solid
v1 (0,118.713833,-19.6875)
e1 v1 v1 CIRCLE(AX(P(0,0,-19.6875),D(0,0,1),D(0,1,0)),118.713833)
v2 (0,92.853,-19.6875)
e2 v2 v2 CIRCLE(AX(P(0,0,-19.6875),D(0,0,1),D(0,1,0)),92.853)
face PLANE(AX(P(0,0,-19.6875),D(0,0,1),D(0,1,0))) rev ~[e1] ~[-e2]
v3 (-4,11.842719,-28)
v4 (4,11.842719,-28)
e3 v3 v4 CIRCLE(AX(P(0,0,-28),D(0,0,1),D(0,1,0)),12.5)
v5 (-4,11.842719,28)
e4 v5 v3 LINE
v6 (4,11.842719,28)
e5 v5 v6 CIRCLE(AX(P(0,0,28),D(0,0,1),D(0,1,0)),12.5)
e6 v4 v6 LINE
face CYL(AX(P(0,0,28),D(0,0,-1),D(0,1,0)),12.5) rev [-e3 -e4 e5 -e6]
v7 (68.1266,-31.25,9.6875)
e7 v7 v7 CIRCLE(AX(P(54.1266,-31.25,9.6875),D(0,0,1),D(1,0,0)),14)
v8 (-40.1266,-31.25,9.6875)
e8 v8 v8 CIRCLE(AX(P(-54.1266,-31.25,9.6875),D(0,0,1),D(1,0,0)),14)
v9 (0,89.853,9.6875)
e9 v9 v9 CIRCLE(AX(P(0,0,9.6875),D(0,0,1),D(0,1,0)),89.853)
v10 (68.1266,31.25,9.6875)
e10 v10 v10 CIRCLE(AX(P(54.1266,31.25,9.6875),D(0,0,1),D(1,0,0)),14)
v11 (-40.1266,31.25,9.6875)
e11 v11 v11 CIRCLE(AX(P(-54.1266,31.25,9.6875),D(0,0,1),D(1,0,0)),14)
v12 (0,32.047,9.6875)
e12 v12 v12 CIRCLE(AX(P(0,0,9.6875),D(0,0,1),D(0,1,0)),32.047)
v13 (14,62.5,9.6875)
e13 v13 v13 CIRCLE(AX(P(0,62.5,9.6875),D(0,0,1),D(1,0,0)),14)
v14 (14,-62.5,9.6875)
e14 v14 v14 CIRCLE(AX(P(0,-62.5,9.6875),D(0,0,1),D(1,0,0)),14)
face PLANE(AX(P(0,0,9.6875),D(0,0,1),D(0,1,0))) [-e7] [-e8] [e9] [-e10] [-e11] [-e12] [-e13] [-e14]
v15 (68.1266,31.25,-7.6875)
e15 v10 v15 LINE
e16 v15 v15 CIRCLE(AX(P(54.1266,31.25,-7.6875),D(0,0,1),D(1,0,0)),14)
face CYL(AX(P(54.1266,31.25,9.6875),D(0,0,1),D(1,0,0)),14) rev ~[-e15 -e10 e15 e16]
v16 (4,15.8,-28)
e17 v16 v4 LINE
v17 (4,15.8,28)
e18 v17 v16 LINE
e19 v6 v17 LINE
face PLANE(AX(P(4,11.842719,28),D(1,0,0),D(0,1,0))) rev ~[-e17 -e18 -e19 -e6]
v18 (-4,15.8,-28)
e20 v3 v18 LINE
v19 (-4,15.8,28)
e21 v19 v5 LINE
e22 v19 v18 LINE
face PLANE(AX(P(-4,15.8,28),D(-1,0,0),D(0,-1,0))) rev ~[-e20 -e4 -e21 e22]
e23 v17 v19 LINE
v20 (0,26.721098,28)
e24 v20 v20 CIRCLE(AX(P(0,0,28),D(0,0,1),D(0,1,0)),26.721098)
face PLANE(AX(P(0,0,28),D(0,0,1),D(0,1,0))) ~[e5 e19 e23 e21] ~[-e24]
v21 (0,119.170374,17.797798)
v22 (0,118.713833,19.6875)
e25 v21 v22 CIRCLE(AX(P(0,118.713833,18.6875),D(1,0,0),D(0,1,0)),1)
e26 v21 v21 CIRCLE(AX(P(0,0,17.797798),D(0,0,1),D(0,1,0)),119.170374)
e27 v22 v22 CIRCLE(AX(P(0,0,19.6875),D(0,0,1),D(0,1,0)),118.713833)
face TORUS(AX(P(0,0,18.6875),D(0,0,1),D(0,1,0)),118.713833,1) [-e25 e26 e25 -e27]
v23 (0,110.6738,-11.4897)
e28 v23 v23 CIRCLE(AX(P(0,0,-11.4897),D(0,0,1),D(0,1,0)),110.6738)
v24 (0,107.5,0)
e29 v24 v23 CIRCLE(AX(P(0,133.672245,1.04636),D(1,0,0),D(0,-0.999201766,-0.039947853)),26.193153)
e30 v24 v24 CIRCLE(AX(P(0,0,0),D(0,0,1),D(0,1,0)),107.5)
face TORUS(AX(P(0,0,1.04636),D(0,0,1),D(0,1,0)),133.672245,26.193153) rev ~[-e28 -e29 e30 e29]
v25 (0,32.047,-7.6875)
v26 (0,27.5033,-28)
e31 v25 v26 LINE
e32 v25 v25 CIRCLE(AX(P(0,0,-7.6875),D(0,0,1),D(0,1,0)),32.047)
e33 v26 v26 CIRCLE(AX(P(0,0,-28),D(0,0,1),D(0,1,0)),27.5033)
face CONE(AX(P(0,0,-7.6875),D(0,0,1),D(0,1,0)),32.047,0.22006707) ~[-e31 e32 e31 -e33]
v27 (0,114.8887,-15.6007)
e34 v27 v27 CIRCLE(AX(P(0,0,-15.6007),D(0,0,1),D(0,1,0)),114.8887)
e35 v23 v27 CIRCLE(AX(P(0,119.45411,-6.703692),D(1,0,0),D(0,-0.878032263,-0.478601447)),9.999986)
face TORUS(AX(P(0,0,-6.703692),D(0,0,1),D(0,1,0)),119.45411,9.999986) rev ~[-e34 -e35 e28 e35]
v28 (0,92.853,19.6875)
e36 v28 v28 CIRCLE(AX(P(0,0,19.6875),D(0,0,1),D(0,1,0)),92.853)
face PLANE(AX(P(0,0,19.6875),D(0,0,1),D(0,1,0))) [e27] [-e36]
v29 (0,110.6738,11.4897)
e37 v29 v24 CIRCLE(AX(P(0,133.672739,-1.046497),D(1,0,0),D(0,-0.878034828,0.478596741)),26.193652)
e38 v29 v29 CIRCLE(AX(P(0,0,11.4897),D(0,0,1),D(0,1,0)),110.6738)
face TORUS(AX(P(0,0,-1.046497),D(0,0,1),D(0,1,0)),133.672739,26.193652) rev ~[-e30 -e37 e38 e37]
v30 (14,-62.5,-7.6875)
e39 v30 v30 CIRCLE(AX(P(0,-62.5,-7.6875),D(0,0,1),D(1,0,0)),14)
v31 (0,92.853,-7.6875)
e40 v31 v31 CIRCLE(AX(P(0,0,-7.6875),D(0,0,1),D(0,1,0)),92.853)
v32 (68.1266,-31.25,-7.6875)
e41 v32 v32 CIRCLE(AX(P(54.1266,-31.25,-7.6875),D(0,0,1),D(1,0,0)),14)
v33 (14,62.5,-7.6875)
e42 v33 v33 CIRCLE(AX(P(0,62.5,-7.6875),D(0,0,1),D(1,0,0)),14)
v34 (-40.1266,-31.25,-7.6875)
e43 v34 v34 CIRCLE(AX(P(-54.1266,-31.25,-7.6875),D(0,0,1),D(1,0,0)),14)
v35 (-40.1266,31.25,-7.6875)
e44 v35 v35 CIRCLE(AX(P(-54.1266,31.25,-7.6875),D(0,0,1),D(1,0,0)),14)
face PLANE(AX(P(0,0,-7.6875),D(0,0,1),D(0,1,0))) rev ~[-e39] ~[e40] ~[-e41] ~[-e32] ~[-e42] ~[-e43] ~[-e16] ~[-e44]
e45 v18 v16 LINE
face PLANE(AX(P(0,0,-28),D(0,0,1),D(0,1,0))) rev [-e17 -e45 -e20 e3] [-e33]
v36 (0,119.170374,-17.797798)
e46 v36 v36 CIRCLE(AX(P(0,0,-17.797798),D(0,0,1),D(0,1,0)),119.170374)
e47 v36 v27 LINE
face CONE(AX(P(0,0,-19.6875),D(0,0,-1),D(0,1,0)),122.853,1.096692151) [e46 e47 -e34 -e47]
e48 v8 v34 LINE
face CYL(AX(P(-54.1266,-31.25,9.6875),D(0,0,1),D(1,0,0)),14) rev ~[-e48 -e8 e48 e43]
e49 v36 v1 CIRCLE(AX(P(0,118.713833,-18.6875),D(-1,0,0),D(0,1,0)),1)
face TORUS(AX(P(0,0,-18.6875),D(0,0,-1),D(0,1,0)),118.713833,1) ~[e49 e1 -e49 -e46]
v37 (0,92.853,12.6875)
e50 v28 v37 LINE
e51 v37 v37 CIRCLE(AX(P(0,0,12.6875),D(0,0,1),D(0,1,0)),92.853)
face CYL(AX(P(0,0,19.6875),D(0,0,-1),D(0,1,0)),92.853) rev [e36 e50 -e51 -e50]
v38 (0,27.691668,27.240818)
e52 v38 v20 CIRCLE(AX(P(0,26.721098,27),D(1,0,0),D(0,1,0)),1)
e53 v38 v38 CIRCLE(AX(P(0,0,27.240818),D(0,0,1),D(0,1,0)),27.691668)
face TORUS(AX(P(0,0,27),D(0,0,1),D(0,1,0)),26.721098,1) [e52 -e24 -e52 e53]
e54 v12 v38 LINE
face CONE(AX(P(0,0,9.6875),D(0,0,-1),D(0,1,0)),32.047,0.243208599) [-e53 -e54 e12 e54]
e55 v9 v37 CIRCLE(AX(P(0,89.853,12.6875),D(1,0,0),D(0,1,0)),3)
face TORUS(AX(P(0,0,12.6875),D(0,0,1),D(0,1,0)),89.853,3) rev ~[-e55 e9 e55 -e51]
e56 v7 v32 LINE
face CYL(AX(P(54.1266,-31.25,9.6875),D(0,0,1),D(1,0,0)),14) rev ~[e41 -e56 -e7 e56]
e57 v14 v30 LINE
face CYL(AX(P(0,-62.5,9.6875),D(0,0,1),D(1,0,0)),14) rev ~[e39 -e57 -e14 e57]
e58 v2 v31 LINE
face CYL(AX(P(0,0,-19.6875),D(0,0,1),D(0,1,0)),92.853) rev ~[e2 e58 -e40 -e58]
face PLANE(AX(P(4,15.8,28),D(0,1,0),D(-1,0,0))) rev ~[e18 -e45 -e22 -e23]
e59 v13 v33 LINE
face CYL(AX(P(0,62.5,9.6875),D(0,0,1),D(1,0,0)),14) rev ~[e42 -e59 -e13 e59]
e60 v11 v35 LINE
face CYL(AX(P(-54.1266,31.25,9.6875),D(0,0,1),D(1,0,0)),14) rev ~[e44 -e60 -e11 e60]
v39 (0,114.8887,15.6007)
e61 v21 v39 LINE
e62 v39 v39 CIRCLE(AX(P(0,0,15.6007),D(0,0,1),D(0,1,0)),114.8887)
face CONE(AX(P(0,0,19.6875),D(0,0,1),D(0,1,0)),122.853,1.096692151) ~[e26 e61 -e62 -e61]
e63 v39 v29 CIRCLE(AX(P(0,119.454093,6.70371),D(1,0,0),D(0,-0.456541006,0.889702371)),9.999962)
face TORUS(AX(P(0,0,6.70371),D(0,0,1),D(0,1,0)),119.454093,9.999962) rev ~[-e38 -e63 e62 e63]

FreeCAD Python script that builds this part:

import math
import FreeCAD as App
import Part
import Sketcher

V = App.Vector


def edges_at(feature, points):
    """Names of the edges that pass closest to the given points."""
    edges = feature.Shape.Edges
    near = lambda p: min(range(len(edges)), key=lambda i: edges[i].distToShape(Part.Vertex(*p))[0])
    return sorted({f"Edge{near(p) + 1}" for p in points})

doc = App.newDocument("Part")
body = doc.addObject("PartDesign::Body", "Body")

sketch1 = body.newObject("Sketcher::SketchObject", "Sketch")
sketch1.AttachmentSupport = (doc.getObject("YZ_Plane"), [""])
sketch1.MapMode = "FlatFace"
sketch1.addGeometry([
    Part.LineSegment(V(114.8887, 15.6007, 0), V(122.853, 19.6875, 0)),
    Part.LineSegment(V(122.853, 19.6875, 0), V(92.853, 19.6875, 0)),
    Part.LineSegment(V(92.853, 19.6875, 0), V(92.853, 9.6875, 0)),
    Part.LineSegment(V(92.853, 9.6875, 0), V(32.047, 9.6875, 0)),
    Part.LineSegment(V(32.047, 9.6875, 0), V(27.5033, 28, 0)),
    Part.LineSegment(V(27.5033, 28, 0), V(12.5, 28, 0)),
    Part.LineSegment(V(12.5, 28, 0), V(12.5, -28, 0)),
    Part.LineSegment(V(12.5, -28, 0), V(27.5033, -28, 0)),
    Part.LineSegment(V(27.5033, -28, 0), V(32.047, -7.6875, 0)),
    Part.LineSegment(V(32.047, -7.6875, 0), V(92.853, -7.6875, 0)),
    Part.LineSegment(V(92.853, -7.6875, 0), V(92.853, -19.6875, 0)),
    Part.LineSegment(V(92.853, -19.6875, 0), V(122.853, -19.6875, 0)),
    Part.LineSegment(V(122.853, -19.6875, 0), V(114.8887, -15.6007, 0)),
    Part.ArcOfCircle(Part.Circle(V(119.4541, -6.7037, 0), V(0, 0, 1), 9.999973), math.radians(-151.405911), math.radians(-117.16414)),
    Part.ArcOfCircle(Part.Circle(V(133.6725, 1.0464, 0), V(0, 0, 1), 26.19341), math.radians(-177.710483), math.radians(-151.406142)),
    Part.ArcOfCircle(Part.Circle(V(133.6725, -1.0464, 0), V(0, 0, 1), 26.193396), math.radians(151.406142), math.radians(177.710483)),
    Part.ArcOfCircle(Part.Circle(V(119.4541, 6.7037, 0), V(0, 0, 1), 9.999974), math.radians(117.16414), math.radians(151.405911)),
], False)
sketch1.addConstraint([
    Sketcher.Constraint("Coincident", 0, 2, 1, 1),
    Sketcher.Constraint("Coincident", 1, 2, 2, 1),
    Sketcher.Constraint("Coincident", 2, 2, 3, 1),
    Sketcher.Constraint("Coincident", 3, 2, 4, 1),
    Sketcher.Constraint("Coincident", 4, 2, 5, 1),
    Sketcher.Constraint("Coincident", 5, 2, 6, 1),
    Sketcher.Constraint("Coincident", 6, 2, 7, 1),
    Sketcher.Constraint("Coincident", 7, 2, 8, 1),
    Sketcher.Constraint("Coincident", 8, 2, 9, 1),
    Sketcher.Constraint("Coincident", 9, 2, 10, 1),
    Sketcher.Constraint("Coincident", 10, 2, 11, 1),
    Sketcher.Constraint("Coincident", 11, 2, 12, 1),
    Sketcher.Constraint("Coincident", 12, 2, 13, 2),
    Sketcher.Constraint("Coincident", 13, 1, 14, 2),
    Sketcher.Constraint("Coincident", 14, 1, 15, 2),
    Sketcher.Constraint("Coincident", 15, 1, 16, 2),
    Sketcher.Constraint("Coincident", 16, 1, 0, 1),
    Sketcher.Constraint("Horizontal", 1),
    Sketcher.Constraint("Vertical", 2),
    Sketcher.Constraint("Horizontal", 3),
    Sketcher.Constraint("Horizontal", 5),
    Sketcher.Constraint("Vertical", 6),
    Sketcher.Constraint("Horizontal", 7),
    Sketcher.Constraint("Horizontal", 9),
    Sketcher.Constraint("Vertical", 10),
    Sketcher.Constraint("Horizontal", 11),
    Sketcher.Constraint("PointOnObject", 14, 1, -1),
    Sketcher.Constraint("Radius", 13, 10.0),
    Sketcher.Constraint("Radius", 16, 10.0),
    Sketcher.Constraint("DistanceX", 1, 2, 1, 1, 30.0),
    Sketcher.Constraint("DistanceX", 11, 1, 11, 2, 30.0),
    Sketcher.Constraint("DistanceY", 2, 2, 2, 1, 10.0),
    Sketcher.Constraint("DistanceY", -1, 1, 4, 2, 28.0),
    Sketcher.Constraint("DistanceY", 6, 2, -1, 1, 28.0),
    Sketcher.Constraint("DistanceX", 9, 2, 0, 2, 30.0),
    Sketcher.Constraint("DistanceY", 10, 2, 10, 1, 12.0),
    Sketcher.Constraint("DistanceY", -1, 1, 2, 2, 9.6875),
    Sketcher.Constraint("DistanceX", -1, 1, 5, 2, 12.5),
    Sketcher.Constraint("DistanceX", -1, 1, 14, 1, 107.5),
    Sketcher.Constraint("Radius", 14, 26.1934),
    Sketcher.Constraint("Radius", 15, 26.1934),
    Sketcher.Constraint("DistanceX", 3, 2, 3, 1, 60.806),
    Sketcher.Constraint("DistanceX", 9, 1, 9, 2, 60.806),
    Sketcher.Constraint("DistanceY", 13, 3, 14, 3, 7.75),
    Sketcher.Constraint("DistanceY", 15, 3, 16, 3, 7.75),
    Sketcher.Constraint("DistanceX", 5, 2, 5, 1, 15.0033),
    Sketcher.Constraint("DistanceX", 7, 1, 7, 2, 15.0033),
    Sketcher.Constraint("DistanceX", -1, 1, 13, 3, 119.454),
    Sketcher.Constraint("DistanceX", -1, 1, 16, 3, 119.454),
    Sketcher.Constraint("DistanceX", -1, 1, 0, 2, 122.853),
    Sketcher.Constraint("DistanceY", 8, 2, 3, 2, 17.375),
    Sketcher.Constraint("DistanceY", 12, 2, 13, 3, 8.897),
    Sketcher.Constraint("DistanceX", 13, 1, 12, 2, 4.215),
    Sketcher.Constraint("DistanceY", 16, 3, 15, 1, 4.786),
    Sketcher.Constraint("DistanceX", 15, 1, 16, 1, 4.215),
])
revolution = body.newObject("PartDesign::Revolution", "Revolution")
revolution.Profile = sketch1
revolution.ReferenceAxis = (sketch1, ["V_Axis"])
revolution.Angle = 360
doc.recompute()

fillet = body.newObject("PartDesign::Fillet", "Fillet")
fillet.Base = (revolution, edges_at(revolution, [(0, -122.853, 19.688), (0, -122.853, -19.688)]))
fillet.Radius = 1
doc.recompute()

fillet2 = body.newObject("PartDesign::Fillet", "Fillet001")
fillet2.Base = (fillet, edges_at(fillet, [(0, -27.503, 28)]))
fillet2.Radius = 1
doc.recompute()

fillet3 = body.newObject("PartDesign::Fillet", "Fillet002")
fillet3.Base = (fillet2, edges_at(fillet2, [(0, -92.853, 9.688)]))
fillet3.Radius = 3

sketch2 = body.newObject("Sketcher::SketchObject", "Sketch001")
sketch2.AttachmentSupport = (doc.getObject("XY_Plane"), [""])
sketch2.MapMode = "FlatFace"
sketch2.AttachmentOffset = App.Placement(V(0, 0, 28), App.Rotation())
sketch2.addGeometry([
    Part.ArcOfCircle(Part.Circle(V(0, 0, 0), V(0, 0, 1), 12.5), math.radians(71), math.radians(109)),
    Part.LineSegment(V(4, 11.8, 0), V(4, 15.8, 0)),
    Part.LineSegment(V(4, 15.8, 0), V(-4, 15.8, 0)),
    Part.LineSegment(V(-4, 15.8, 0), V(-4, 11.8, 0)),
], False)
sketch2.addConstraint([
    Sketcher.Constraint("Coincident", 0, 1, 1, 1),
    Sketcher.Constraint("Coincident", 1, 2, 2, 1),
    Sketcher.Constraint("Coincident", 2, 2, 3, 1),
    Sketcher.Constraint("Coincident", 3, 2, 0, 2),
    Sketcher.Constraint("Vertical", 1),
    Sketcher.Constraint("Horizontal", 2),
    Sketcher.Constraint("Vertical", 3),
    Sketcher.Constraint("Coincident", 0, 3, -1, 1),
    Sketcher.Constraint("Horizontal", 0, 1, 3, 2),
    Sketcher.Constraint("DistanceX", 2, 2, 2, 1, 8.0),
    Sketcher.Constraint("Radius", 0, 12.5),
    Sketcher.Constraint("DistanceY", -1, 1, 1, 2, 15.8),
])
pocket1 = body.newObject("PartDesign::Pocket", "Pocket")
pocket1.Profile = sketch2
pocket1.Type = "ThroughAll"

sketch3 = body.newObject("Sketcher::SketchObject", "Sketch002")
sketch3.AttachmentSupport = (doc.getObject("XY_Plane"), [""])
sketch3.MapMode = "FlatFace"
sketch3.AttachmentOffset = App.Placement(V(0, 0, 9.6875), App.Rotation())
sketch3.addGeometry([
    Part.Circle(V(0, 62, 0), V(0, 0, 1), 14),
    Part.Circle(V(-54, 31, 0), V(0, 0, 1), 14),
    Part.Circle(V(-54, -31, 0), V(0, 0, 1), 14),
    Part.Circle(V(0, -62, 0), V(0, 0, 1), 14),
    Part.Circle(V(54, -31, 0), V(0, 0, 1), 14),
    Part.Circle(V(54, 31, 0), V(0, 0, 1), 14),
], False)
sketch3.addConstraint([
    Sketcher.Constraint("Equal", 0, 1),
    Sketcher.Constraint("Equal", 1, 2),
    Sketcher.Constraint("Equal", 2, 3),
    Sketcher.Constraint("Equal", 3, 4),
    Sketcher.Constraint("Equal", 4, 5),
    Sketcher.Constraint("Symmetric", 0, 3, 3, 3, -1, 1),
    Sketcher.Constraint("Symmetric", 1, 3, 4, 3, -1, 1),
    Sketcher.Constraint("Symmetric", 2, 3, 5, 3, -1, 1),
    Sketcher.Constraint("Symmetric", 2, 3, 4, 3, -2),
    Sketcher.Constraint("PointOnObject", 0, 3, -2),
    Sketcher.Constraint("Diameter", 0, 28.0),
    Sketcher.Constraint("DistanceY", 3, 3, 0, 3, 125.0),
    Sketcher.Constraint("DistanceY", 2, 3, 1, 3, 62.5),
    Sketcher.Constraint("DistanceX", 1, 3, -1, 1, 54.1266),
])
pocket2 = body.newObject("PartDesign::Pocket", "Pocket001")
pocket2.Profile = sketch3
pocket2.Type = "ThroughAll"

doc.recompute()
